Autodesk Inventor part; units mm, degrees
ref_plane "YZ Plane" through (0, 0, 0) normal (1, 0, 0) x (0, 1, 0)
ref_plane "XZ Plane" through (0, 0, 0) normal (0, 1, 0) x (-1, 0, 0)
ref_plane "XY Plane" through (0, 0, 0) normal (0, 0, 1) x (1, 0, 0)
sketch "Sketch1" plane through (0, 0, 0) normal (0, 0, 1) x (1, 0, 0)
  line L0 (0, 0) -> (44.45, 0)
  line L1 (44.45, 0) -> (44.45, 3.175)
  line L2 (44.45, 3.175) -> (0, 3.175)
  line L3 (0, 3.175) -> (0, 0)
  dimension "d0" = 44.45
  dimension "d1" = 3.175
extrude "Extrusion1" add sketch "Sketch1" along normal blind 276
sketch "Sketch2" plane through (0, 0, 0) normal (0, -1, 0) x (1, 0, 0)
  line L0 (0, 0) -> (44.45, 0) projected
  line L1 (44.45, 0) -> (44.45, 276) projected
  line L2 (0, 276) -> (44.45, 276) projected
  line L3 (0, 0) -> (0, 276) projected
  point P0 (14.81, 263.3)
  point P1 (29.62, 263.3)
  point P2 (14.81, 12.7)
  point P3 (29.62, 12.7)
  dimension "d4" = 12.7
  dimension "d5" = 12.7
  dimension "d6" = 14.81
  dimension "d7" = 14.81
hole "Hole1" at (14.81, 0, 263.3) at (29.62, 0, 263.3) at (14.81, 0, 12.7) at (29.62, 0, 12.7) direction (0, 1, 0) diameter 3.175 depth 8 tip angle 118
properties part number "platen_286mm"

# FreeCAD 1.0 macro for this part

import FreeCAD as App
import Part
import Sketcher
from FreeCAD import Vector
Q = App.Units.Quantity

doc = App.newDocument("Part")
body = doc.addObject("PartDesign::Body", "Body")

# Sketch on XY plane
sketch1 = doc.addObject("Sketcher::SketchObject", "Sketch")
body.addObject(sketch1)
sketch1.AttachmentSupport = (doc.XY_Plane, [""])
sketch1.MapMode = "FlatFace"
sketch1.addGeometry(Part.LineSegment(Vector(0, 3.2, 0), Vector(0, 0, 0)), False)
sketch1.addGeometry(Part.LineSegment(Vector(0, 0, 0), Vector(44.5, 0, 0)), False)
sketch1.addGeometry(Part.LineSegment(Vector(44.5, 0, 0), Vector(44.5, 3.2, 0)), False)
sketch1.addGeometry(Part.LineSegment(Vector(44.5, 3.2, 0), Vector(0, 3.2, 0)), False)
sketch1.addConstraint(Sketcher.Constraint("Coincident", 0, 2, 1, 1))
sketch1.addConstraint(Sketcher.Constraint("Coincident", 1, 2, 2, 1))
sketch1.addConstraint(Sketcher.Constraint("Coincident", 2, 2, 3, 1))
sketch1.addConstraint(Sketcher.Constraint("Coincident", 3, 2, 0, 1))
sketch1.addConstraint(Sketcher.Constraint("Vertical", 0))
sketch1.addConstraint(Sketcher.Constraint("Horizontal", 1))
sketch1.addConstraint(Sketcher.Constraint("Vertical", 2))
sketch1.addConstraint(Sketcher.Constraint("Horizontal", 3))
sketch1.addConstraint(Sketcher.Constraint("Coincident", 0, 2, -1, 1))
sketch1.addConstraint(Sketcher.Constraint("DistanceX", 1, 1, 1, 2, Q("44.45 mm")))
sketch1.addConstraint(Sketcher.Constraint("DistanceY", 0, 2, 0, 1, Q("3.175 mm")))
pad1 = doc.addObject("PartDesign::Pad", "Pad")
body.addObject(pad1)
pad1.Profile = sketch1
pad1.Length = 276

# Sketch on XZ plane
sketch2 = doc.addObject("Sketcher::SketchObject", "Sketch001")
body.addObject(sketch2)
sketch2.AttachmentSupport = (doc.XZ_Plane, [""])
sketch2.MapMode = "FlatFace"
sketch2.addGeometry(Part.Circle(Vector(14.8, 263.3, 0), Vector(0, 0, 1), 1.6), False)
sketch2.addGeometry(Part.Circle(Vector(29.6, 263.3, 0), Vector(0, 0, 1), 1.6), False)
sketch2.addGeometry(Part.Circle(Vector(14.8, 12.7, 0), Vector(0, 0, 1), 1.6), False)
sketch2.addGeometry(Part.Circle(Vector(29.6, 12.7, 0), Vector(0, 0, 1), 1.6), False)
sketch2.addConstraint(Sketcher.Constraint("Equal", 0, 1))
sketch2.addConstraint(Sketcher.Constraint("Equal", 1, 2))
sketch2.addConstraint(Sketcher.Constraint("Equal", 2, 3))
sketch2.addConstraint(Sketcher.Constraint("Horizontal", 0, 3, 1, 3))
sketch2.addConstraint(Sketcher.Constraint("Horizontal", 2, 3, 3, 3))
sketch2.addConstraint(Sketcher.Constraint("Vertical", 0, 3, 2, 3))
sketch2.addConstraint(Sketcher.Constraint("Vertical", 1, 3, 3, 3))
sketch2.addConstraint(Sketcher.Constraint("Diameter", 0, Q("3.175 mm")))
sketch2.addConstraint(Sketcher.Constraint("DistanceY", -1, 1, 0, 3, Q("263.3 mm")))
sketch2.addConstraint(Sketcher.Constraint("DistanceY", -1, 1, 2, 3, Q("12.7 mm")))
sketch2.addConstraint(Sketcher.Constraint("DistanceX", -1, 1, 0, 3, Q("14.81 mm")))
sketch2.addConstraint(Sketcher.Constraint("DistanceX", -1, 1, 1, 3, Q("29.62 mm")))
doc.recompute()
hole = doc.addObject("PartDesign::Hole", "Hole")
body.addObject(hole)
hole.Profile = sketch2
hole.ThreadType = "None"
hole.Diameter = 3.175
hole.DepthType = "Dimension"
hole.Depth = 8
hole.DrillPoint = "Angled"
hole.DrillPointAngle = 118

doc.recompute()
